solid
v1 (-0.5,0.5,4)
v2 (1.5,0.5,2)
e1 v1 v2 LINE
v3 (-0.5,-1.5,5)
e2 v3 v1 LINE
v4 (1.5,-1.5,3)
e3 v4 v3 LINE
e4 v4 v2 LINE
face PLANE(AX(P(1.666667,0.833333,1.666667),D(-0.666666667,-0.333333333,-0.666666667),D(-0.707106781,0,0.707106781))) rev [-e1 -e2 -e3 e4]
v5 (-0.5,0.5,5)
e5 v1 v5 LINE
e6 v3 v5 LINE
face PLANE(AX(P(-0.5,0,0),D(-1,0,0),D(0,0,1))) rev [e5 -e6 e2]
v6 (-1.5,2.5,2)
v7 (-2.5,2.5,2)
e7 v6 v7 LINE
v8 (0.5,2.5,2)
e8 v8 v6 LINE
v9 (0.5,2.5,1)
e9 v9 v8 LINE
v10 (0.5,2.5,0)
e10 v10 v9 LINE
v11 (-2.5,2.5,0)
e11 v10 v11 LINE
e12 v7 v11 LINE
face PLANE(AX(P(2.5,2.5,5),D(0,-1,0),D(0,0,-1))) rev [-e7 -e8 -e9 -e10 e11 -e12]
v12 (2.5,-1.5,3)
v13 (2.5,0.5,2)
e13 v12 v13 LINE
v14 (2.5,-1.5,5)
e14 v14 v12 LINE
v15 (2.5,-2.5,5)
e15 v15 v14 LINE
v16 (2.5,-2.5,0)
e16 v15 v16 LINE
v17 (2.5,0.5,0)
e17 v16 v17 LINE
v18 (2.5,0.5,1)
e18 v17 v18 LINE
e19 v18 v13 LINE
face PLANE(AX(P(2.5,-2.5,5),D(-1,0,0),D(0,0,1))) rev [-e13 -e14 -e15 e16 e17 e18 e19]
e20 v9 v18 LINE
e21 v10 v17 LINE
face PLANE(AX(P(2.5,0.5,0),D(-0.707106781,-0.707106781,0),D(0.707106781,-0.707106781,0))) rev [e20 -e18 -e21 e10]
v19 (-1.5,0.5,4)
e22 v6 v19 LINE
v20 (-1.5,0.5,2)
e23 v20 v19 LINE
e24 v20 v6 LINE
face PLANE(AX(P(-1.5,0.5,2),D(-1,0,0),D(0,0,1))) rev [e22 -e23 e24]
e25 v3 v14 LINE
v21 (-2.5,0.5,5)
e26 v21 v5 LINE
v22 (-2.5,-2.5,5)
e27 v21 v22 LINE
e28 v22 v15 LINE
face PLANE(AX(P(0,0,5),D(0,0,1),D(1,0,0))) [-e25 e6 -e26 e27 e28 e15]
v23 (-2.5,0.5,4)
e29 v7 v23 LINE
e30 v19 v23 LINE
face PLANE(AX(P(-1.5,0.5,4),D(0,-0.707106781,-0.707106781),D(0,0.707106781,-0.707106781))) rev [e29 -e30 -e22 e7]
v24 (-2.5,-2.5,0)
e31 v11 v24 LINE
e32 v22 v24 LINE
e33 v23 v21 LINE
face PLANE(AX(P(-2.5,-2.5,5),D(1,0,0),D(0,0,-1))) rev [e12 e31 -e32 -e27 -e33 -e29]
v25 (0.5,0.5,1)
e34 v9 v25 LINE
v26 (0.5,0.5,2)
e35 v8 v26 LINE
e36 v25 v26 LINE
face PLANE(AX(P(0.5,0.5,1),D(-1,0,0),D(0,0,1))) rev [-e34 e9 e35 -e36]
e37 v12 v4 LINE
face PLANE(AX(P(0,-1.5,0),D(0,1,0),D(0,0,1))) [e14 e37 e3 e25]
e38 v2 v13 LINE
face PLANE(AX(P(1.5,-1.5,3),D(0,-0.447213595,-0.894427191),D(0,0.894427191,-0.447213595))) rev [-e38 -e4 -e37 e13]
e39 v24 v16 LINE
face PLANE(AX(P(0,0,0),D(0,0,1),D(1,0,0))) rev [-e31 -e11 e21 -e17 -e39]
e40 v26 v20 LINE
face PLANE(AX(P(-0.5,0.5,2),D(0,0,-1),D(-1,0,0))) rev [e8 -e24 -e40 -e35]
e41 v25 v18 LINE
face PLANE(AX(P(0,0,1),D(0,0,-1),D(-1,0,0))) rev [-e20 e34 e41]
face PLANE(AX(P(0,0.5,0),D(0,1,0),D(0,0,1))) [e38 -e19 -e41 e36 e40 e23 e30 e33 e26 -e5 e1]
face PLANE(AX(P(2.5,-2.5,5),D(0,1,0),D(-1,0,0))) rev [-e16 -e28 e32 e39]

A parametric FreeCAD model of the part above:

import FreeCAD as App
import Part
import Sketcher
Q = App.Units.Quantity

doc = App.newDocument("Part")
body = doc.addObject("PartDesign::Body", "Body")

sketch1 = body.newObject("Sketcher::SketchObject", "Sketch")
sketch1.AttachmentSupport = (doc.getObject("XY_Plane"), [""])
sketch1.MapMode = "FlatFace"
sketch1.addGeometry([
    Part.LineSegment(App.Vector(-2.5, 2.5, 0), App.Vector(-2.5, -2.5, 0)),
    Part.LineSegment(App.Vector(-2.5, -2.5, 0), App.Vector(2.5, -2.5, 0)),
    Part.LineSegment(App.Vector(2.5, -2.5, 0), App.Vector(2.5, 2.5, 0)),
    Part.LineSegment(App.Vector(2.5, 2.5, 0), App.Vector(-2.5, 2.5, 0)),
], False)
sketch1.addConstraint([
    Sketcher.Constraint("Coincident", 0, 2, 1, 1),
    Sketcher.Constraint("Coincident", 1, 2, 2, 1),
    Sketcher.Constraint("Coincident", 2, 2, 3, 1),
    Sketcher.Constraint("Coincident", 3, 2, 0, 1),
    Sketcher.Constraint("Vertical", 0),
    Sketcher.Constraint("Horizontal", 1),
    Sketcher.Constraint("Vertical", 2),
    Sketcher.Constraint("Horizontal", 3),
    Sketcher.Constraint("Symmetric", 0, 2, 2, 2, -1, 1),
    Sketcher.Constraint("Equal", 3, 0),
    Sketcher.Constraint("DistanceX", 1, 1, 1, 2, Q("5 mm")),
])
pad1 = body.newObject("PartDesign::Pad", "Pad")
pad1.Profile = sketch1
pad1.Length = 5

sketch2 = body.newObject("Sketcher::SketchObject", "Sketch001")
sketch2.AttachmentSupport = (doc.getObject("XZ_Plane"), [""])
sketch2.MapMode = "FlatFace"
sketch2.AttachmentOffset = App.Placement(App.Vector(0, 0, -2.5), App.Rotation())
sketch2.addGeometry([
    Part.LineSegment(App.Vector(-2.5, 5, 0), App.Vector(-0.5, 5, 0)),
    Part.LineSegment(App.Vector(-0.5, 5, 0), App.Vector(-0.5, 2, 0)),
    Part.LineSegment(App.Vector(-0.5, 2, 0), App.Vector(-1.5, 2, 0)),
    Part.LineSegment(App.Vector(-1.5, 2, 0), App.Vector(-1.5, 4, 0)),
    Part.LineSegment(App.Vector(-1.5, 4, 0), App.Vector(-2.5, 4, 0)),
    Part.LineSegment(App.Vector(-2.5, 4, 0), App.Vector(-2.5, 5, 0)),
], False)
sketch2.addConstraint([
    Sketcher.Constraint("Coincident", 0, 2, 1, 1),
    Sketcher.Constraint("Coincident", 1, 2, 2, 1),
    Sketcher.Constraint("Coincident", 2, 2, 3, 1),
    Sketcher.Constraint("Coincident", 3, 2, 4, 1),
    Sketcher.Constraint("Coincident", 4, 2, 5, 1),
    Sketcher.Constraint("Coincident", 5, 2, 0, 1),
    Sketcher.Constraint("Horizontal", 0),
    Sketcher.Constraint("Vertical", 1),
    Sketcher.Constraint("Horizontal", 2),
    Sketcher.Constraint("Vertical", 3),
    Sketcher.Constraint("Horizontal", 4),
    Sketcher.Constraint("Vertical", 5),
    Sketcher.Constraint("Equal", 2, 4),
    Sketcher.Constraint("Equal", 0, 3),
    Sketcher.Constraint("Equal", 4, 5),
    Sketcher.Constraint("DistanceX", 0, 1, 0, 2, Q("2 mm")),
    Sketcher.Constraint("DistanceY", -1, 1, 0, 2, Q("5 mm")),
    Sketcher.Constraint("DistanceX", 0, 2, -1, 1, Q("0.5 mm")),
])
pocket1 = body.newObject("PartDesign::Pocket", "Pocket")
pocket1.Profile = sketch2
pocket1.Length = 2
pocket1.Reversed = True

sketch3 = body.newObject("Sketcher::SketchObject", "Sketch002")
sketch3.AttachmentSupport = (doc.getObject("YZ_Plane"), [""])
sketch3.MapMode = "FlatFace"
sketch3.AttachmentOffset = App.Placement(App.Vector(0, 0, -2.5), App.Rotation())
sketch3.addGeometry([
    Part.LineSegment(App.Vector(2.5, 2, 0), App.Vector(0.5, 4, 0)),
    Part.LineSegment(App.Vector(0.5, 4, 0), App.Vector(2.5, 4, 0)),
    Part.LineSegment(App.Vector(2.5, 4, 0), App.Vector(2.5, 2, 0)),
], False)
sketch3.addConstraint([
    Sketcher.Constraint("Coincident", 0, 2, 1, 1),
    Sketcher.Constraint("Coincident", 1, 2, 2, 1),
    Sketcher.Constraint("Coincident", 2, 2, 0, 1),
    Sketcher.Constraint("Horizontal", 1),
    Sketcher.Constraint("Vertical", 2),
    Sketcher.Constraint("Equal", 1, 2),
    Sketcher.Constraint("DistanceX", 1, 1, 1, 2, Q("2 mm")),
    Sketcher.Constraint("DistanceY", -1, 1, 0, 2, Q("4 mm")),
    Sketcher.Constraint("DistanceX", -1, 1, 0, 2, Q("0.5 mm")),
])
pocket2 = body.newObject("PartDesign::Pocket", "Pocket001")
pocket2.Profile = sketch3
pocket2.Length = 1
pocket2.Reversed = True

sketch4 = body.newObject("Sketcher::SketchObject", "Sketch003")
sketch4.AttachmentSupport = (doc.getObject("XY_Plane"), [""])
sketch4.MapMode = "FlatFace"
sketch4.AttachmentOffset = App.Placement(App.Vector(0, 0, 5), App.Rotation())
sketch4.addGeometry([
    Part.LineSegment(App.Vector(-0.5, 2.5, 0), App.Vector(-0.5, 0.5, 0)),
    Part.LineSegment(App.Vector(-0.5, 0.5, 0), App.Vector(2.5, 0.5, 0)),
    Part.LineSegment(App.Vector(2.5, 0.5, 0), App.Vector(2.5, 2.5, 0)),
    Part.LineSegment(App.Vector(2.5, 2.5, 0), App.Vector(-0.5, 2.5, 0)),
], False)
sketch4.addConstraint([
    Sketcher.Constraint("Coincident", 0, 2, 1, 1),
    Sketcher.Constraint("Coincident", 1, 2, 2, 1),
    Sketcher.Constraint("Coincident", 2, 2, 3, 1),
    Sketcher.Constraint("Coincident", 3, 2, 0, 1),
    Sketcher.Constraint("Vertical", 0),
    Sketcher.Constraint("Horizontal", 1),
    Sketcher.Constraint("Vertical", 2),
    Sketcher.Constraint("Horizontal", 3),
    Sketcher.Constraint("DistanceX", 1, 1, 1, 2, Q("3 mm")),
    Sketcher.Constraint("DistanceY", 0, 2, 0, 1, Q("2 mm")),
    Sketcher.Constraint("DistanceX", 0, 2, -1, 1, Q("0.5 mm")),
    Sketcher.Constraint("DistanceY", -1, 1, 0, 2, Q("0.5 mm")),
])
pocket3 = body.newObject("PartDesign::Pocket", "Pocket002")
pocket3.Profile = sketch4
pocket3.Length = 3

sketch5 = body.newObject("Sketcher::SketchObject", "Sketch004")
sketch5.AttachmentSupport = (doc.getObject("XY_Plane"), [""])
sketch5.MapMode = "FlatFace"
sketch5.AttachmentOffset = App.Placement(App.Vector(0, 0, 2), App.Rotation())
sketch5.addGeometry([
    Part.LineSegment(App.Vector(0.5, 2.5, 0), App.Vector(0.5, 0.5, 0)),
    Part.LineSegment(App.Vector(0.5, 0.5, 0), App.Vector(2.5, 0.5, 0)),
    Part.LineSegment(App.Vector(2.5, 0.5, 0), App.Vector(2.5, 2.5, 0)),
    Part.LineSegment(App.Vector(2.5, 2.5, 0), App.Vector(0.5, 2.5, 0)),
], False)
sketch5.addConstraint([
    Sketcher.Constraint("Coincident", 0, 2, 1, 1),
    Sketcher.Constraint("Coincident", 1, 2, 2, 1),
    Sketcher.Constraint("Coincident", 2, 2, 3, 1),
    Sketcher.Constraint("Coincident", 3, 2, 0, 1),
    Sketcher.Constraint("Vertical", 0),
    Sketcher.Constraint("Horizontal", 1),
    Sketcher.Constraint("Vertical", 2),
    Sketcher.Constraint("Horizontal", 3),
    Sketcher.Constraint("Equal", 3, 0),
    Sketcher.Constraint("DistanceX", 1, 1, 1, 2, Q("2 mm")),
    Sketcher.Constraint("DistanceX", -1, 1, 0, 2, Q("0.5 mm")),
    Sketcher.Constraint("DistanceY", -1, 1, 0, 2, Q("0.5 mm")),
])
pocket4 = body.newObject("PartDesign::Pocket", "Pocket003")
pocket4.Profile = sketch5
pocket4.Length = 1

sketch6 = body.newObject("Sketcher::SketchObject", "Sketch005")
sketch6.AttachmentSupport = (doc.getObject("XY_Plane"), [""])
sketch6.MapMode = "FlatFace"
sketch6.AttachmentOffset = App.Placement(App.Vector(0, 0, 1), App.Rotation())
sketch6.addGeometry([
    Part.LineSegment(App.Vector(0.5, 2.5, 0), App.Vector(2.5, 0.5, 0)),
    Part.LineSegment(App.Vector(2.5, 0.5, 0), App.Vector(2.5, 2.5, 0)),
    Part.LineSegment(App.Vector(2.5, 2.5, 0), App.Vector(0.5, 2.5, 0)),
], False)
sketch6.addConstraint([
    Sketcher.Constraint("Coincident", 0, 2, 1, 1),
    Sketcher.Constraint("Coincident", 1, 2, 2, 1),
    Sketcher.Constraint("Coincident", 2, 2, 0, 1),
    Sketcher.Constraint("Vertical", 1),
    Sketcher.Constraint("Horizontal", 2),
    Sketcher.Constraint("Equal", 2, 1),
    Sketcher.Constraint("DistanceX", 2, 2, 2, 1, Q("2 mm")),
    Sketcher.Constraint("DistanceX", -1, 1, 0, 2, Q("2.5 mm")),
    Sketcher.Constraint("DistanceY", -1, 1, 0, 2, Q("0.5 mm")),
])
pocket5 = body.newObject("PartDesign::Pocket", "Pocket004")
pocket5.Profile = sketch6
pocket5.Length = 1

sketch7 = body.newObject("Sketcher::SketchObject", "Sketch006")
sketch7.AttachmentSupport = (doc.getObject("XZ_Plane"), [""])
sketch7.MapMode = "FlatFace"
sketch7.AttachmentOffset = App.Placement(App.Vector(0, 0, -0.5), App.Rotation())
sketch7.addGeometry([
    Part.LineSegment(App.Vector(2.5, 5, 0), App.Vector(2.5, 3, 0)),
    Part.LineSegment(App.Vector(2.5, 3, 0), App.Vector(1.5, 3, 0)),
    Part.LineSegment(App.Vector(1.5, 3, 0), App.Vector(-0.5, 5, 0)),
    Part.LineSegment(App.Vector(-0.5, 5, 0), App.Vector(2.5, 5, 0)),
], False)
sketch7.addConstraint([
    Sketcher.Constraint("Coincident", 0, 2, 1, 1),
    Sketcher.Constraint("Coincident", 1, 2, 2, 1),
    Sketcher.Constraint("Coincident", 2, 2, 3, 1),
    Sketcher.Constraint("Coincident", 3, 2, 0, 1),
    Sketcher.Constraint("Vertical", 0),
    Sketcher.Constraint("Horizontal", 1),
    Sketcher.Constraint("Horizontal", 3),
    Sketcher.Constraint("DistanceX", 1, 2, 1, 1, Q("1 mm")),
    Sketcher.Constraint("DistanceX", 3, 1, 3, 2, Q("3 mm")),
    Sketcher.Constraint("DistanceY", 0, 2, 0, 1, Q("2 mm")),
    Sketcher.Constraint("DistanceY", -1, 1, 0, 2, Q("3 mm")),
    Sketcher.Constraint("DistanceX", -1, 1, 0, 2, Q("2.5 mm")),
])
pocket6 = body.newObject("PartDesign::Pocket", "Pocket005")
pocket6.Profile = sketch7
pocket6.Length = 2
pocket6.Reversed = True

sketch8 = body.newObject("Sketcher::SketchObject", "Sketch007")
sketch8.AttachmentSupport = (doc.getObject("YZ_Plane"), [""])
sketch8.MapMode = "FlatFace"
sketch8.AttachmentOffset = App.Placement(App.Vector(0, 0, 2.5), App.Rotation())
sketch8.addGeometry([
    Part.LineSegment(App.Vector(-1.5, 3, 0), App.Vector(0.5, 2, 0)),
    Part.LineSegment(App.Vector(0.5, 2, 0), App.Vector(0.5, 3, 0)),
    Part.LineSegment(App.Vector(0.5, 3, 0), App.Vector(-1.5, 3, 0)),
], False)
sketch8.addConstraint([
    Sketcher.Constraint("Coincident", 0, 2, 1, 1),
    Sketcher.Constraint("Coincident", 1, 2, 2, 1),
    Sketcher.Constraint("Coincident", 2, 2, 0, 1),
    Sketcher.Constraint("Vertical", 1),
    Sketcher.Constraint("Horizontal", 2),
    Sketcher.Constraint("DistanceX", 2, 2, 2, 1, Q("2 mm")),
    Sketcher.Constraint("DistanceY", 1, 1, 1, 2, Q("1 mm")),
    Sketcher.Constraint("DistanceY", -1, 1, 0, 2, Q("2 mm")),
    Sketcher.Constraint("DistanceX", -1, 1, 0, 2, Q("0.5 mm")),
])
pocket7 = body.newObject("PartDesign::Pocket", "Pocket006")
pocket7.Profile = sketch8
pocket7.Length = 1

sketch9 = body.newObject("Sketcher::SketchObject", "Sketch008")
sketch9.AttachmentSupport = (doc.getObject("YZ_Plane"), [""])
sketch9.MapMode = "FlatFace"
sketch9.AttachmentOffset = App.Placement(App.Vector(0, 0, 2.5), App.Rotation())
sketch9.addGeometry([
    Part.LineSegment(App.Vector(-1.5, 5, 0), App.Vector(0.5, 4, 0)),
    Part.LineSegment(App.Vector(0.5, 4, 0), App.Vector(0.5, 5, 0)),
    Part.LineSegment(App.Vector(0.5, 5, 0), App.Vector(-1.5, 5, 0)),
], False)
sketch9.addConstraint([
    Sketcher.Constraint("Coincident", 0, 2, 1, 1),
    Sketcher.Constraint("Coincident", 1, 2, 2, 1),
    Sketcher.Constraint("Coincident", 2, 2, 0, 1),
    Sketcher.Constraint("Vertical", 1),
    Sketcher.Constraint("Horizontal", 2),
    Sketcher.Constraint("DistanceX", 2, 2, 2, 1, Q("2 mm")),
    Sketcher.Constraint("DistanceY", 1, 1, 1, 2, Q("1 mm")),
    Sketcher.Constraint("DistanceY", -1, 1, 0, 2, Q("4 mm")),
    Sketcher.Constraint("DistanceX", -1, 1, 0, 2, Q("0.5 mm")),
])
pocket8 = body.newObject("PartDesign::Pocket", "Pocket007")
pocket8.Profile = sketch9
pocket8.Length = 3

sketch10 = body.newObject("Sketcher::SketchObject", "Sketch009")
sketch10.Placement = App.Placement(App.Vector(1.666667, 0.833333, 1.666667), App.Rotation(App.Vector(-0.745355992, 0.298142397, 0.596284794), App.Vector(0, 0.894427191, -0.447213595), App.Vector(-0.666666667, -0.333333333, -0.666666667), "ZXY"))
sketch10.addGeometry([
    Part.LineSegment(App.Vector(2.906888, -1.341641, 0), App.Vector(0.223607, -0.447214, 0)),
    Part.LineSegment(App.Vector(0.223607, -0.447214, 0), App.Vector(0.223607, -2.683282, 0)),
    Part.LineSegment(App.Vector(0.223607, -2.683282, 0), App.Vector(2.906888, -3.577709, 0)),
    Part.LineSegment(App.Vector(2.906888, -3.577709, 0), App.Vector(2.906888, -1.341641, 0)),
], False)
sketch10.addConstraint([
    Sketcher.Constraint("Coincident", 0, 2, 1, 1),
    Sketcher.Constraint("Coincident", 1, 2, 2, 1),
    Sketcher.Constraint("Coincident", 2, 2, 3, 1),
    Sketcher.Constraint("Coincident", 3, 2, 0, 1),
    Sketcher.Constraint("Vertical", 1),
    Sketcher.Constraint("Vertical", 3),
    Sketcher.Constraint("Parallel", 0, 2),
    Sketcher.Constraint("DistanceY", 1, 2, 1, 1, Q("2.236068 mm")),
    Sketcher.Constraint("DistanceY", 1, 2, -1, 1, Q("2.683282 mm")),
    Sketcher.Constraint("DistanceX", -1, 1, 2, 2, Q("2.906888 mm")),
    Sketcher.Constraint("DistanceY", 2, 2, -1, 1, Q("3.577709 mm")),
    Sketcher.Constraint("DistanceX", 1, 2, 2, 2, Q("2.683282 mm")),
])
pocket9 = body.newObject("PartDesign::Pocket", "Pocket008")
pocket9.Profile = sketch10
pocket9.Length = 3

doc.recompute()
